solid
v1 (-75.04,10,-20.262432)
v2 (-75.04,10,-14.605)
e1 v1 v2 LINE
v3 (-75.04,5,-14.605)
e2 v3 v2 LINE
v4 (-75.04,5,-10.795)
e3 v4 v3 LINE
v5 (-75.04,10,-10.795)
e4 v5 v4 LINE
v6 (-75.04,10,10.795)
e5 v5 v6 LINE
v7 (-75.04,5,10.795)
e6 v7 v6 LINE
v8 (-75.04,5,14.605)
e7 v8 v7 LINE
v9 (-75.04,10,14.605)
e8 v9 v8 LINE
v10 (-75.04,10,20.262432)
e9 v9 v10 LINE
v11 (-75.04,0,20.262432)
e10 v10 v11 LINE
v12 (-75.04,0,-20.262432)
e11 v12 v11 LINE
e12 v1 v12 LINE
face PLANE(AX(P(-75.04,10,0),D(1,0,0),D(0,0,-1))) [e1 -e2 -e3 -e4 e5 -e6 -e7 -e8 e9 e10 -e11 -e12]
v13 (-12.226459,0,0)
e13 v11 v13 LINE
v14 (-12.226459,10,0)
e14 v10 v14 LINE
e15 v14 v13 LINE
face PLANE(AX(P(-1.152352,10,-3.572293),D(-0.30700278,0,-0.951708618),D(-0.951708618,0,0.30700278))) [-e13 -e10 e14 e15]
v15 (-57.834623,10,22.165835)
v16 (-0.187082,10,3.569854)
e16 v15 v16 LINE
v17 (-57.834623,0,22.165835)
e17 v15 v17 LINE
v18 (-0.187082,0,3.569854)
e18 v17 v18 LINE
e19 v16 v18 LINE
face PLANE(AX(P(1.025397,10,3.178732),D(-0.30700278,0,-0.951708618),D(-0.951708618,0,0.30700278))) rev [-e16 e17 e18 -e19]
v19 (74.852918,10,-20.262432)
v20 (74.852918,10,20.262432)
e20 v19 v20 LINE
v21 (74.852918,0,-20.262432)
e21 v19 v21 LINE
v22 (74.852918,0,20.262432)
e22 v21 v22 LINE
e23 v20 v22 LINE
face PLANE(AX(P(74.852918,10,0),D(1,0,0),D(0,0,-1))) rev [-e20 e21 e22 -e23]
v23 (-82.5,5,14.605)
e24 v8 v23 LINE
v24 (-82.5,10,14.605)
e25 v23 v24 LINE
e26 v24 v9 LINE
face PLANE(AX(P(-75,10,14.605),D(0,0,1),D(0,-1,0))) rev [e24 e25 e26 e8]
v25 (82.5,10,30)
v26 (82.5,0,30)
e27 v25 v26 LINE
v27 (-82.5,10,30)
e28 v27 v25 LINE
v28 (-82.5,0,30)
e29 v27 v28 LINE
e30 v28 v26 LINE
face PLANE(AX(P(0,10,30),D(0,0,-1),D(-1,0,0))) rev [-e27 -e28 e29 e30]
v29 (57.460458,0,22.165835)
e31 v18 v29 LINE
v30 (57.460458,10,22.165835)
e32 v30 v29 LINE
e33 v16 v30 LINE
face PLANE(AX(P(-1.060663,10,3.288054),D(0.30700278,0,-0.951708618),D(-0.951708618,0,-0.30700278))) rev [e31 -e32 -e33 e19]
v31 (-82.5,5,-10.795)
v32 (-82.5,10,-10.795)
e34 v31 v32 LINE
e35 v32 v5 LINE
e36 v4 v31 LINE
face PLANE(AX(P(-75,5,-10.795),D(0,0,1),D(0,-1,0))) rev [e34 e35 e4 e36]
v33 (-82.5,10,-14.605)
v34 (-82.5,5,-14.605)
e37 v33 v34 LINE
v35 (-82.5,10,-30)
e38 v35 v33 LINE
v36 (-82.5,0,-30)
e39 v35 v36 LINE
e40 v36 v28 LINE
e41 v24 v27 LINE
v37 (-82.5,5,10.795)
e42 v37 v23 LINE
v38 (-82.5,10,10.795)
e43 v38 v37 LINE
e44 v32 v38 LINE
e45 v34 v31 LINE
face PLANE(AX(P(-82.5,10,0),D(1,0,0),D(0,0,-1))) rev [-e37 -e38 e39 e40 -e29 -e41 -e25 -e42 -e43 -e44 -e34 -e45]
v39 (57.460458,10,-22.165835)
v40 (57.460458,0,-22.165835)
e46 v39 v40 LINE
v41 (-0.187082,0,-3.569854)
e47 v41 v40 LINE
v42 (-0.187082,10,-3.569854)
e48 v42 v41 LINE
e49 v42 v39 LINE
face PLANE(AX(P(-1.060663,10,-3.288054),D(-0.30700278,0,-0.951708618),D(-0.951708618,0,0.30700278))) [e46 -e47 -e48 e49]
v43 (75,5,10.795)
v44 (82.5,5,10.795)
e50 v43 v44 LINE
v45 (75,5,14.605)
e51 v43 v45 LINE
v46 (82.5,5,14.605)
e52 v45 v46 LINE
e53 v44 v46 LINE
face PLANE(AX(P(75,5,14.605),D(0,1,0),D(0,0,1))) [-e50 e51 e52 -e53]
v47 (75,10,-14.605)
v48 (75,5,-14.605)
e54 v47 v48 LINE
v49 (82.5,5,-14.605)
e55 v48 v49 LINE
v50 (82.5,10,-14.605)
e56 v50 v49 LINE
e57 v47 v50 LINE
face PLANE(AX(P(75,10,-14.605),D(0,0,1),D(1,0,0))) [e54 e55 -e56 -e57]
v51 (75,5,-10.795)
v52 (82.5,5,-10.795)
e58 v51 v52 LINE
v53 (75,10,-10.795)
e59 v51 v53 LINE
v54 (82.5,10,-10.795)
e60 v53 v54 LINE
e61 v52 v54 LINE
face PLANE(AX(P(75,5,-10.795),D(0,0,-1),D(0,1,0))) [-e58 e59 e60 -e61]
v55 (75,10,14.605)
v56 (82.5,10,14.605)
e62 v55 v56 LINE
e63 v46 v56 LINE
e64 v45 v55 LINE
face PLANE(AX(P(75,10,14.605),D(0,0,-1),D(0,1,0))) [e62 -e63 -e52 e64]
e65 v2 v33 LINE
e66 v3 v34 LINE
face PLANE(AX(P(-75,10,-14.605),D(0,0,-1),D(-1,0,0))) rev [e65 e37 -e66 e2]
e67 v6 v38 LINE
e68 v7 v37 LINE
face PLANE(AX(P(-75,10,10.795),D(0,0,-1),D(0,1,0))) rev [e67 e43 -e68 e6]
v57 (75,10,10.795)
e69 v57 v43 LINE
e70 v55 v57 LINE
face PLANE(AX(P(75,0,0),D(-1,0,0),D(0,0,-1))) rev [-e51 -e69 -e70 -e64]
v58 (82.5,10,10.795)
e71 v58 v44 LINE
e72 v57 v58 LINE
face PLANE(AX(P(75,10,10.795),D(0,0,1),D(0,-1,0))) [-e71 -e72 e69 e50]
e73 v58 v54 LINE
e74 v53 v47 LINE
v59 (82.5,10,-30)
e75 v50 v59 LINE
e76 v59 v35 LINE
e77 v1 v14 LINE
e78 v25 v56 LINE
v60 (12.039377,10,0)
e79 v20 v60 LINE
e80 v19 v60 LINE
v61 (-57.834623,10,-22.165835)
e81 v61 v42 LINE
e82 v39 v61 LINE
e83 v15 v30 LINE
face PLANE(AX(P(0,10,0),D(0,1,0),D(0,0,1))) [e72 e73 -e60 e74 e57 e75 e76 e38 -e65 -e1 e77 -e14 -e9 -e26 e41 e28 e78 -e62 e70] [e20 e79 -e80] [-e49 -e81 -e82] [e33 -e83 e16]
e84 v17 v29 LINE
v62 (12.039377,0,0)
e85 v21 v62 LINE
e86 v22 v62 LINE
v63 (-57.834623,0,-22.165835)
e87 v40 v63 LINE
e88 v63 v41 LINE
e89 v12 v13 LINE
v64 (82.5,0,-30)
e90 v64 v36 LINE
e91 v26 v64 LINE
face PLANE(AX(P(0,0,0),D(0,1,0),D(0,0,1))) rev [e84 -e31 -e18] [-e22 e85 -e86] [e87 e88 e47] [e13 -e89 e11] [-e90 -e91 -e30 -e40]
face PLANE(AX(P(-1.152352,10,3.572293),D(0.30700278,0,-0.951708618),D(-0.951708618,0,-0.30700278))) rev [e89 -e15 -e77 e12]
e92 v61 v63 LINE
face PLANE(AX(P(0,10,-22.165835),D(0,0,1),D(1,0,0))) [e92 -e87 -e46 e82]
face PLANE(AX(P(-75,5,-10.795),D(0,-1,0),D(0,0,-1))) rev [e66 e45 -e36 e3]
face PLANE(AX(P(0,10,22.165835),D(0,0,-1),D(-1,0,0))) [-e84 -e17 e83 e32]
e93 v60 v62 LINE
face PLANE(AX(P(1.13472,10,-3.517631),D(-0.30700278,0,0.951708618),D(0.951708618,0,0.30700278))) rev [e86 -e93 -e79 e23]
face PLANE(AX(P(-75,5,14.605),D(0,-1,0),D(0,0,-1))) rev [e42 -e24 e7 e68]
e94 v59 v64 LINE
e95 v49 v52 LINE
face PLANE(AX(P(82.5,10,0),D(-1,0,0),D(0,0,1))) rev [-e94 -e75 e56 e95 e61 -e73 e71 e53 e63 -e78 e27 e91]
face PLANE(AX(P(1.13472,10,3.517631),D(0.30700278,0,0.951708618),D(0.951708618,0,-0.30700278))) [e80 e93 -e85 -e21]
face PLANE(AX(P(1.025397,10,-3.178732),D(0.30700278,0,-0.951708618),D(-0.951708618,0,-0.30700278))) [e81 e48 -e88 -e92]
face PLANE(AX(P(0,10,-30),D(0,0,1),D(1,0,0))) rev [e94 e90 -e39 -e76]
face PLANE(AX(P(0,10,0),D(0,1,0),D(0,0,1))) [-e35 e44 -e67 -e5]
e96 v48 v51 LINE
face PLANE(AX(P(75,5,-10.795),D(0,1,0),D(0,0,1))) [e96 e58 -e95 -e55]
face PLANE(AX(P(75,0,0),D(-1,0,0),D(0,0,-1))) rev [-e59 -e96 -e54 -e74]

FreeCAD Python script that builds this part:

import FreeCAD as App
import Part
import Sketcher

V = App.Vector

doc = App.newDocument("Part")
body = doc.addObject("PartDesign::Body", "Body")

sketch1 = body.newObject("Sketcher::SketchObject", "Sketch")
sketch1.AttachmentSupport = (doc.getObject("XZ_Plane"), [""])
sketch1.MapMode = "FlatFace"
sketch1.addGeometry(Part.LineSegment(V(-82, -30, 0), V(-82, 30, 0)), False)
sketch1.addGeometry(Part.LineSegment(V(-82, 30, 0), V(82, 30, 0)), False)
sketch1.addGeometry(Part.LineSegment(V(82, 30, 0), V(82, -30, 0)), False)
sketch1.addGeometry(Part.LineSegment(V(82, -30, 0), V(-82, -30, 0)), False)
sketch1.addGeometry(Part.LineSegment(V(57, 22, 0), V(-58, 22, 0)), False)
sketch1.addGeometry(Part.LineSegment(V(-58, 22, 0), V(0, 4, 0)), False)
sketch1.addGeometry(Part.LineSegment(V(0, 4, 0), V(57, 22, 0)), False)
sketch1.addGeometry(Part.LineSegment(V(-75, 20, 0), V(-75, -20, 0)), False)
sketch1.addGeometry(Part.LineSegment(V(-75, -20, 0), V(-12, 0, 0)), False)
sketch1.addGeometry(Part.LineSegment(V(-12, 0, 0), V(-75, 20, 0)), False)
sketch1.addGeometry(Part.LineSegment(V(-58, -22, 0), V(57, -22, 0)), False)
sketch1.addGeometry(Part.LineSegment(V(57, -22, 0), V(0, -4, 0)), False)
sketch1.addGeometry(Part.LineSegment(V(0, -4, 0), V(-58, -22, 0)), False)
sketch1.addGeometry(Part.LineSegment(V(12, 0, 0), V(75, -20, 0)), False)
sketch1.addGeometry(Part.LineSegment(V(75, -20, 0), V(75, 20, 0)), False)
sketch1.addGeometry(Part.LineSegment(V(75, 20, 0), V(12, 0, 0)), False)
sketch1.addConstraint(Sketcher.Constraint("Coincident", 0, 2, 1, 1))
sketch1.addConstraint(Sketcher.Constraint("Coincident", 1, 2, 2, 1))
sketch1.addConstraint(Sketcher.Constraint("Coincident", 2, 2, 3, 1))
sketch1.addConstraint(Sketcher.Constraint("Coincident", 3, 2, 0, 1))
sketch1.addConstraint(Sketcher.Constraint("Coincident", 4, 2, 5, 1))
sketch1.addConstraint(Sketcher.Constraint("Coincident", 5, 2, 6, 1))
sketch1.addConstraint(Sketcher.Constraint("Coincident", 6, 2, 4, 1))
sketch1.addConstraint(Sketcher.Constraint("Coincident", 7, 2, 8, 1))
sketch1.addConstraint(Sketcher.Constraint("Coincident", 8, 2, 9, 1))
sketch1.addConstraint(Sketcher.Constraint("Coincident", 9, 2, 7, 1))
sketch1.addConstraint(Sketcher.Constraint("Coincident", 10, 2, 11, 1))
sketch1.addConstraint(Sketcher.Constraint("Coincident", 11, 2, 12, 1))
sketch1.addConstraint(Sketcher.Constraint("Coincident", 12, 2, 10, 1))
sketch1.addConstraint(Sketcher.Constraint("Coincident", 13, 2, 14, 1))
sketch1.addConstraint(Sketcher.Constraint("Coincident", 14, 2, 15, 1))
sketch1.addConstraint(Sketcher.Constraint("Coincident", 15, 2, 13, 1))
sketch1.addConstraint(Sketcher.Constraint("Vertical", 0))
sketch1.addConstraint(Sketcher.Constraint("Horizontal", 1))
sketch1.addConstraint(Sketcher.Constraint("Vertical", 2))
sketch1.addConstraint(Sketcher.Constraint("Horizontal", 3))
sketch1.addConstraint(Sketcher.Constraint("Horizontal", 4))
sketch1.addConstraint(Sketcher.Constraint("Vertical", 7))
sketch1.addConstraint(Sketcher.Constraint("Horizontal", 10))
sketch1.addConstraint(Sketcher.Constraint("Vertical", 14))
sketch1.addConstraint(Sketcher.Constraint("Symmetric", 0, 2, 2, 2, -1, 1))
sketch1.addConstraint(Sketcher.Constraint("Symmetric", 6, 2, 10, 2, -1))
sketch1.addConstraint(Sketcher.Constraint("Symmetric", 5, 2, 11, 2, -1))
sketch1.addConstraint(Sketcher.Constraint("PointOnObject", 8, 2, -1))
sketch1.addConstraint(Sketcher.Constraint("PointOnObject", 15, 2, -1))
sketch1.addConstraint(Sketcher.Constraint("Parallel", 6, 8))
sketch1.addConstraint(Sketcher.Constraint("Parallel", 5, 9))
sketch1.addConstraint(Sketcher.Constraint("Parallel", 9, 11))
sketch1.addConstraint(Sketcher.Constraint("Parallel", 8, 12))
sketch1.addConstraint(Sketcher.Constraint("Parallel", 11, 13))
sketch1.addConstraint(Sketcher.Constraint("Parallel", 12, 15))
sketch1.addConstraint(Sketcher.Constraint("Horizontal", 7, 2, 13, 2))
sketch1.addConstraint(Sketcher.Constraint("DistanceX", 1, 1, 1, 2, 165.0))
sketch1.addConstraint(Sketcher.Constraint("DistanceY", 0, 1, 0, 2, 60.0))
sketch1.addConstraint(Sketcher.Constraint("DistanceX", 7, 2, -1, 1, 75.04))
sketch1.addConstraint(Sketcher.Constraint("DistanceX", 11, 2, 13, 2, 75.04))
sketch1.addConstraint(Sketcher.Constraint("DistanceX", 4, 2, 4, 1, 115.295081))
sketch1.addConstraint(Sketcher.Constraint("Distance", 5, 60.572679))
sketch1.addConstraint(Sketcher.Constraint("Distance", 8, 66.000811))
sketch1.addConstraint(Sketcher.Constraint("DistanceX", -1, 1, 6, 2, 57.460458))
sketch1.addConstraint(Sketcher.Constraint("DistanceY", 10, 2, 6, 2, 44.33167))
pad1 = body.newObject("PartDesign::Pad", "Pad")
pad1.Profile = sketch1
pad1.Length = 10
pad1.Reversed = True

sketch2 = body.newObject("Sketcher::SketchObject", "Sketch001")
sketch2.AttachmentSupport = (doc.getObject("YZ_Plane"), [""])
sketch2.MapMode = "FlatFace"
sketch2.AttachmentOffset = App.Placement(V(0, 0, -82.5), App.Rotation())
sketch2.addGeometry(Part.LineSegment(V(10, -14.6, 0), V(5, -14.6, 0)), False)
sketch2.addGeometry(Part.LineSegment(V(5, -14.6, 0), V(5, -10.8, 0)), False)
sketch2.addGeometry(Part.LineSegment(V(5, -10.8, 0), V(10, -10.8, 0)), False)
sketch2.addGeometry(Part.LineSegment(V(10, -10.8, 0), V(10, -14.6, 0)), False)
sketch2.addGeometry(Part.LineSegment(V(10, 10.8, 0), V(5, 10.8, 0)), False)
sketch2.addGeometry(Part.LineSegment(V(5, 10.8, 0), V(5, 14.6, 0)), False)
sketch2.addGeometry(Part.LineSegment(V(5, 14.6, 0), V(10, 14.6, 0)), False)
sketch2.addGeometry(Part.LineSegment(V(10, 14.6, 0), V(10, 10.8, 0)), False)
sketch2.addConstraint(Sketcher.Constraint("Coincident", 0, 2, 1, 1))
sketch2.addConstraint(Sketcher.Constraint("Coincident", 1, 2, 2, 1))
sketch2.addConstraint(Sketcher.Constraint("Coincident", 2, 2, 3, 1))
sketch2.addConstraint(Sketcher.Constraint("Coincident", 3, 2, 0, 1))
sketch2.addConstraint(Sketcher.Constraint("Coincident", 4, 2, 5, 1))
sketch2.addConstraint(Sketcher.Constraint("Coincident", 5, 2, 6, 1))
sketch2.addConstraint(Sketcher.Constraint("Coincident", 6, 2, 7, 1))
sketch2.addConstraint(Sketcher.Constraint("Coincident", 7, 2, 4, 1))
sketch2.addConstraint(Sketcher.Constraint("Horizontal", 0))
sketch2.addConstraint(Sketcher.Constraint("Vertical", 1))
sketch2.addConstraint(Sketcher.Constraint("Horizontal", 2))
sketch2.addConstraint(Sketcher.Constraint("Vertical", 3))
sketch2.addConstraint(Sketcher.Constraint("Horizontal", 4))
sketch2.addConstraint(Sketcher.Constraint("Vertical", 5))
sketch2.addConstraint(Sketcher.Constraint("Horizontal", 6))
sketch2.addConstraint(Sketcher.Constraint("Vertical", 7))
sketch2.addConstraint(Sketcher.Constraint("Symmetric", 1, 2, 4, 2, -1))
sketch2.addConstraint(Sketcher.Constraint("Symmetric", 3, 2, 6, 2, -1))
sketch2.addConstraint(Sketcher.Constraint("DistanceX", 0, 2, 0, 1, 5.0))
sketch2.addConstraint(Sketcher.Constraint("DistanceX", -1, 1, 0, 2, 5.0))
sketch2.addConstraint(Sketcher.Constraint("DistanceY", 1, 1, 1, 2, 3.81))
sketch2.addConstraint(Sketcher.Constraint("DistanceY", 0, 2, 4, 2, 25.4))
pocket1 = body.newObject("PartDesign::Pocket", "Pocket")
pocket1.Profile = sketch2
pocket1.Length = 7.5
pocket1.Reversed = True
doc.recompute()

mirrored = body.newObject("PartDesign::Mirrored", "Mirrored")
mirrored.Originals = [pocket1]
mirrored.MirrorPlane = (doc.getObject("YZ_Plane"), [""])
body.Tip = mirrored

doc.recompute()
